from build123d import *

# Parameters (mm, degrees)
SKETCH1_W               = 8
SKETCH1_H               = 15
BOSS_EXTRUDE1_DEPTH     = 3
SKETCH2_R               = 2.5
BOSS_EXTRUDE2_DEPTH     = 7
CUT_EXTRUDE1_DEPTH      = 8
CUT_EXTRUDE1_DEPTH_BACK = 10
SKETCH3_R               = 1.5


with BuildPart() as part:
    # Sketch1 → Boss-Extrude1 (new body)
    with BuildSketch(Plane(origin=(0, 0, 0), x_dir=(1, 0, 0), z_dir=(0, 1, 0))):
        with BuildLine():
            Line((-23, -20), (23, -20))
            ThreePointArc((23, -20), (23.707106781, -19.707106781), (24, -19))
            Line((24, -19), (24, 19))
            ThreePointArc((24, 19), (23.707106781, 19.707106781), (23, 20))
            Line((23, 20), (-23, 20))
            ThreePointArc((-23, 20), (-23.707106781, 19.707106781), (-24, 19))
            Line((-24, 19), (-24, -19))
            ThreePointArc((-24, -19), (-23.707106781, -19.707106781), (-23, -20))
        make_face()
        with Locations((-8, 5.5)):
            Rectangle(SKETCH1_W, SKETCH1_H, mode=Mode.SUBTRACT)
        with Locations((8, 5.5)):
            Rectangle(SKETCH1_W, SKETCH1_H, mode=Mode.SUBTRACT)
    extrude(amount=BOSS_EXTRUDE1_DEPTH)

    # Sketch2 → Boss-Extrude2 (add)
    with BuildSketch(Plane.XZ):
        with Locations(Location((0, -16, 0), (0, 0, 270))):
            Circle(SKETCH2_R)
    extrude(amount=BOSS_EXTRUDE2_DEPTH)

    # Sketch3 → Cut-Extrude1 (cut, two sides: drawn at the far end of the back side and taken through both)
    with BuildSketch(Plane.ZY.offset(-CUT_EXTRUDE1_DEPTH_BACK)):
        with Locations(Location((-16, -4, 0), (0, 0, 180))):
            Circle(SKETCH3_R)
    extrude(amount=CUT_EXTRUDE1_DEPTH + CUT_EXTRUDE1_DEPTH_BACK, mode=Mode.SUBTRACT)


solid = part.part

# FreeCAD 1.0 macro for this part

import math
import FreeCAD as App
import Part
import Sketcher

doc = App.newDocument("Part")
body = doc.addObject("PartDesign::Body", "Body")

sketch1 = doc.addObject("Sketcher::SketchObject", "Sketch")
body.addObject(sketch1)
sketch1.AttachmentSupport = (doc.XZ_Plane, [""])
sketch1.MapMode = "FlatFace"
sketch1.addGeometry(Part.LineSegment(App.Vector(-23, 20, 0), App.Vector(23, 20, 0)), False)
sketch1.addGeometry(Part.ArcOfCircle(Part.Circle(App.Vector(23, 19, 0), App.Vector(0, 0, 1), 1), math.radians(0), math.radians(90)), False)
sketch1.addGeometry(Part.LineSegment(App.Vector(24, 19, 0), App.Vector(24, -19, 0)), False)
sketch1.addGeometry(Part.ArcOfCircle(Part.Circle(App.Vector(23, -19, 0), App.Vector(0, 0, 1), 1), math.radians(-90), math.radians(0)), False)
sketch1.addGeometry(Part.LineSegment(App.Vector(23, -20, 0), App.Vector(-23, -20, 0)), False)
sketch1.addGeometry(Part.ArcOfCircle(Part.Circle(App.Vector(-23, -19, 0), App.Vector(0, 0, 1), 1), math.radians(-180), math.radians(-90)), False)
sketch1.addGeometry(Part.LineSegment(App.Vector(-24, -19, 0), App.Vector(-24, 19, 0)), False)
sketch1.addGeometry(Part.ArcOfCircle(Part.Circle(App.Vector(-23, 19, 0), App.Vector(0, 0, 1), 1), math.radians(90), math.radians(180)), False)
sketch1.addGeometry(Part.LineSegment(App.Vector(-4, 2, 0), App.Vector(-12, 2, 0)), False)
sketch1.addGeometry(Part.LineSegment(App.Vector(-12, 2, 0), App.Vector(-12, -13, 0)), False)
sketch1.addGeometry(Part.LineSegment(App.Vector(-12, -13, 0), App.Vector(-4, -13, 0)), False)
sketch1.addGeometry(Part.LineSegment(App.Vector(-4, -13, 0), App.Vector(-4, 2, 0)), False)
sketch1.addGeometry(Part.LineSegment(App.Vector(12, 2, 0), App.Vector(4, 2, 0)), False)
sketch1.addGeometry(Part.LineSegment(App.Vector(4, 2, 0), App.Vector(4, -13, 0)), False)
sketch1.addGeometry(Part.LineSegment(App.Vector(4, -13, 0), App.Vector(12, -13, 0)), False)
sketch1.addGeometry(Part.LineSegment(App.Vector(12, -13, 0), App.Vector(12, 2, 0)), False)
sketch1.addConstraint(Sketcher.Constraint("Tangent", 0, 2, 1, 2))
sketch1.addConstraint(Sketcher.Constraint("Tangent", 1, 1, 2, 1))
sketch1.addConstraint(Sketcher.Constraint("Tangent", 2, 2, 3, 2))
sketch1.addConstraint(Sketcher.Constraint("Tangent", 3, 1, 4, 1))
sketch1.addConstraint(Sketcher.Constraint("Tangent", 4, 2, 5, 2))
sketch1.addConstraint(Sketcher.Constraint("Tangent", 5, 1, 6, 1))
sketch1.addConstraint(Sketcher.Constraint("Tangent", 6, 2, 7, 2))
sketch1.addConstraint(Sketcher.Constraint("Tangent", 7, 1, 0, 1))
sketch1.addConstraint(Sketcher.Constraint("Coincident", 8, 2, 9, 1))
sketch1.addConstraint(Sketcher.Constraint("Coincident", 9, 2, 10, 1))
sketch1.addConstraint(Sketcher.Constraint("Coincident", 10, 2, 11, 1))
sketch1.addConstraint(Sketcher.Constraint("Coincident", 11, 2, 8, 1))
sketch1.addConstraint(Sketcher.Constraint("Coincident", 12, 2, 13, 1))
sketch1.addConstraint(Sketcher.Constraint("Coincident", 13, 2, 14, 1))
sketch1.addConstraint(Sketcher.Constraint("Coincident", 14, 2, 15, 1))
sketch1.addConstraint(Sketcher.Constraint("Coincident", 15, 2, 12, 1))
sketch1.addConstraint(Sketcher.Constraint("Horizontal", 0))
sketch1.addConstraint(Sketcher.Constraint("Vertical", 2))
sketch1.addConstraint(Sketcher.Constraint("Horizontal", 4))
sketch1.addConstraint(Sketcher.Constraint("Vertical", 6))
sketch1.addConstraint(Sketcher.Constraint("Horizontal", 8))
sketch1.addConstraint(Sketcher.Constraint("Vertical", 9))
sketch1.addConstraint(Sketcher.Constraint("Horizontal", 10))
sketch1.addConstraint(Sketcher.Constraint("Vertical", 11))
sketch1.addConstraint(Sketcher.Constraint("Horizontal", 12))
sketch1.addConstraint(Sketcher.Constraint("Vertical", 13))
sketch1.addConstraint(Sketcher.Constraint("Horizontal", 14))
sketch1.addConstraint(Sketcher.Constraint("Vertical", 15))
sketch1.addConstraint(Sketcher.Constraint("Equal", 1, 3))
sketch1.addConstraint(Sketcher.Constraint("Equal", 3, 5))
sketch1.addConstraint(Sketcher.Constraint("Equal", 5, 7))
sketch1.addConstraint(Sketcher.Constraint("Symmetric", 1, 3, 5, 3, -1, 1))
sketch1.addConstraint(Sketcher.Constraint("Symmetric", 11, 2, 12, 2, -2))
sketch1.addConstraint(Sketcher.Constraint("Symmetric", 9, 2, 14, 2, -2))
sketch1.addConstraint(Sketcher.Constraint("Radius", 1, 1.0))
sketch1.addConstraint(Sketcher.Constraint("DistanceX", 0, 1, 0, 2, 46.0))
sketch1.addConstraint(Sketcher.Constraint("DistanceX", 8, 2, 8, 1, 8.0))
sketch1.addConstraint(Sketcher.Constraint("DistanceY", 2, 2, 2, 1, 38.0))
sketch1.addConstraint(Sketcher.Constraint("DistanceY", 9, 2, 9, 1, 15.0))
sketch1.addConstraint(Sketcher.Constraint("DistanceX", 8, 2, -1, 1, 12.0))
sketch1.addConstraint(Sketcher.Constraint("DistanceY", -1, 1, 8, 2, 2.0))
pad1 = doc.addObject("PartDesign::Pad", "Pad")
body.addObject(pad1)
pad1.Profile = sketch1
pad1.Length = 3
pad1.Reversed = True

sketch2 = doc.addObject("Sketcher::SketchObject", "Sketch001")
body.addObject(sketch2)
sketch2.AttachmentSupport = (doc.XZ_Plane, [""])
sketch2.MapMode = "FlatFace"
sketch2.addGeometry(Part.Circle(App.Vector(0, -16, 0), App.Vector(0, 0, 1), 2.5), False)
sketch2.addConstraint(Sketcher.Constraint("PointOnObject", 0, 3, -2))
sketch2.addConstraint(Sketcher.Constraint("Diameter", 0, 5.0))
sketch2.addConstraint(Sketcher.Constraint("DistanceY", 0, 3, -1, 1, 16.0))
pad2 = doc.addObject("PartDesign::Pad", "Pad001")
body.addObject(pad2)
pad2.Profile = sketch2
pad2.Length = 7

sketch3 = doc.addObject("Sketcher::SketchObject", "Sketch002")
body.addObject(sketch3)
sketch3.AttachmentSupport = (doc.YZ_Plane, [""])
sketch3.MapMode = "FlatFace"
sketch3.addGeometry(Part.Circle(App.Vector(-4, -16, 0), App.Vector(0, 0, 1), 1.5), False)
sketch3.addConstraint(Sketcher.Constraint("Diameter", 0, 3.0))
sketch3.addConstraint(Sketcher.Constraint("DistanceX", 0, 3, -1, 1, 4.0))
sketch3.addConstraint(Sketcher.Constraint("DistanceY", 0, 3, -1, 1, 16.0))
pocket1 = doc.addObject("PartDesign::Pocket", "Pocket")
body.addObject(pocket1)
pocket1.Profile = sketch3
pocket1.Type = "ThroughAll"
pocket1.Midplane = True

doc.recompute()
